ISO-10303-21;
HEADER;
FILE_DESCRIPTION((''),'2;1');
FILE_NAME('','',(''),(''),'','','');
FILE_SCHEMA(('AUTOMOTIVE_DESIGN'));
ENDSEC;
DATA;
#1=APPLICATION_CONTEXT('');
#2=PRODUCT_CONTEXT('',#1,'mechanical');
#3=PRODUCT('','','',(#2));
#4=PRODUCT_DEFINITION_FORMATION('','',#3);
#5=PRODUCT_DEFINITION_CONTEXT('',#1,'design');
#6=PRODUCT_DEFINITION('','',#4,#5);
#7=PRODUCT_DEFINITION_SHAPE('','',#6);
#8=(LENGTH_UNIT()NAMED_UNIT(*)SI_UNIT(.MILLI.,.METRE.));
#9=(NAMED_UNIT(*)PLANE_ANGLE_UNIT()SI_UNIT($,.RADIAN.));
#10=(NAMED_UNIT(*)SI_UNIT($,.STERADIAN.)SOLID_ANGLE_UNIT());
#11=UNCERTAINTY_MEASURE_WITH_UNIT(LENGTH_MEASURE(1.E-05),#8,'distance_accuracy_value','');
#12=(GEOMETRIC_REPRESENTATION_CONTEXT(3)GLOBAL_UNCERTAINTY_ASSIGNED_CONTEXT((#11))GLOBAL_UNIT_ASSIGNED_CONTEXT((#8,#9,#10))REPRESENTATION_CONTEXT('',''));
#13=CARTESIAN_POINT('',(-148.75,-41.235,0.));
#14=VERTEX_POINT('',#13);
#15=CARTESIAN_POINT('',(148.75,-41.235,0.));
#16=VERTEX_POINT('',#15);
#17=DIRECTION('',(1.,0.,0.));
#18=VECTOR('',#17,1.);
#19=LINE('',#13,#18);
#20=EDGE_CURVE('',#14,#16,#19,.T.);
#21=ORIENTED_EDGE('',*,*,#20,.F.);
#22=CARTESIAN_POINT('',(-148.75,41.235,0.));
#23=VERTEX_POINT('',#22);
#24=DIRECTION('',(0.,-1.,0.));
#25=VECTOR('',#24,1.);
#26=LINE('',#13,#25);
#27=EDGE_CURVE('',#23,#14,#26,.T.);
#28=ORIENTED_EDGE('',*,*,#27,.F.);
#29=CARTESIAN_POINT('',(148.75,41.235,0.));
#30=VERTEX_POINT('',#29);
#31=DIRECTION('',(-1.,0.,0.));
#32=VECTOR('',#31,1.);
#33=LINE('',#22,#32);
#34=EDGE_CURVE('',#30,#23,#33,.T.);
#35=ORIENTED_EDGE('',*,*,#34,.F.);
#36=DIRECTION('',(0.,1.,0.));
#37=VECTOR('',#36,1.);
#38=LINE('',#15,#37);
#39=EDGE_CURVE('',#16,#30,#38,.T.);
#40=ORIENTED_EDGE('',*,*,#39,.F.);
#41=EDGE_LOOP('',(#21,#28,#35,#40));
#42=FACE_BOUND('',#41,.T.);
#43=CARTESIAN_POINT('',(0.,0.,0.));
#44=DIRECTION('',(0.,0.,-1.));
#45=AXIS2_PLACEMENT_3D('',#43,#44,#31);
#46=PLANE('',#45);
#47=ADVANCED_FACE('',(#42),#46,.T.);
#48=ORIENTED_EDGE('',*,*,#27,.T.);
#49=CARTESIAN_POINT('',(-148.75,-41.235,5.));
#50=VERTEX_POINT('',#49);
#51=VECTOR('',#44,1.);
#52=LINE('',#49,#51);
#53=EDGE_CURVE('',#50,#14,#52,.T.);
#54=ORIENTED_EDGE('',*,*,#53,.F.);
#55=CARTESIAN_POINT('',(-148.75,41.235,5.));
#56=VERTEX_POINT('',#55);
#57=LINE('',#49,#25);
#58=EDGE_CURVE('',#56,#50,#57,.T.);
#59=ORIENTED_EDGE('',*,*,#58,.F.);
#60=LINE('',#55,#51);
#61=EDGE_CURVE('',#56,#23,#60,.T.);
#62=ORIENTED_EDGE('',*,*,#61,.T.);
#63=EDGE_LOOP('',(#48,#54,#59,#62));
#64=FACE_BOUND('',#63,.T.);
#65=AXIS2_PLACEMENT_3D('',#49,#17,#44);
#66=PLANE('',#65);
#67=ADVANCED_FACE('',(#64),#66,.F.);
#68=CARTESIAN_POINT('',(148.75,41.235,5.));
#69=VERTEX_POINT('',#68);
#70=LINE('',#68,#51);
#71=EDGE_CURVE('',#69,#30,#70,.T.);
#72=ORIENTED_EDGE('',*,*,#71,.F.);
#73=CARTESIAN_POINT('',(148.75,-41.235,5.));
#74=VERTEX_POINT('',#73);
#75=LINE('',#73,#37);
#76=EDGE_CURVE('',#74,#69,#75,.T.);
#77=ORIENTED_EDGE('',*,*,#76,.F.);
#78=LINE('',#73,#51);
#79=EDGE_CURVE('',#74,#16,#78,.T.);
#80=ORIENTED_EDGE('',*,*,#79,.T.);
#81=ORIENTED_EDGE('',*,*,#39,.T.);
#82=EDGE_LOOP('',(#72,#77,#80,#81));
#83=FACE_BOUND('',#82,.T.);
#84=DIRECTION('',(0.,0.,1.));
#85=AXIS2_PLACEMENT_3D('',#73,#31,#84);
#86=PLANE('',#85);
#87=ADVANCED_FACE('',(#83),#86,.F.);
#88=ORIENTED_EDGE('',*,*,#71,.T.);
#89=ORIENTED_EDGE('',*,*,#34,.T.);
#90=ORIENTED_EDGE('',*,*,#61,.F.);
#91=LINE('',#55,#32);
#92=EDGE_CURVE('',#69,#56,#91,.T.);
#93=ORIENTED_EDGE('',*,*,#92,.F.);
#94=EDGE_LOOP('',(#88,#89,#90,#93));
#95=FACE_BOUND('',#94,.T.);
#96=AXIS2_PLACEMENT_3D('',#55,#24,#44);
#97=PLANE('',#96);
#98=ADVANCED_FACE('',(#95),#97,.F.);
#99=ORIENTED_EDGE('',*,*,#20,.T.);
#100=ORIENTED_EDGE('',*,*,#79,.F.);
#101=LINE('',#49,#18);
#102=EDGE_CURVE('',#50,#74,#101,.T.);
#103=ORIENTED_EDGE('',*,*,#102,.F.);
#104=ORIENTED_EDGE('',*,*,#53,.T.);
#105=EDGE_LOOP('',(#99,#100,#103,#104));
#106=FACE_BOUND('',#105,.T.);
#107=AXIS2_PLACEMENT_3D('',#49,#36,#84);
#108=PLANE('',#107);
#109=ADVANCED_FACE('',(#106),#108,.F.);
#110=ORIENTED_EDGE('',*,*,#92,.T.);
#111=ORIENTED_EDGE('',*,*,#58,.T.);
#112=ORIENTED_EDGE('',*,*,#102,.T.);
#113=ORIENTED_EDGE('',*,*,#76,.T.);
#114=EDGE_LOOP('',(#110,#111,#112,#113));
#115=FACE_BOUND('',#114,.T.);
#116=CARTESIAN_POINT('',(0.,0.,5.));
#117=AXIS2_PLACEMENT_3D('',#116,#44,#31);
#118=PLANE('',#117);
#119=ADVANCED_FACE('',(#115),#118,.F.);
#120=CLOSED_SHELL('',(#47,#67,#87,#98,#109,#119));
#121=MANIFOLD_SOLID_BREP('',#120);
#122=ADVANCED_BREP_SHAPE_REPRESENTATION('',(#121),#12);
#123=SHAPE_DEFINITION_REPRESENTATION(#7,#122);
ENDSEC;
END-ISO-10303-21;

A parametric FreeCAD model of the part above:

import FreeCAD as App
import Part
import Sketcher
from FreeCAD import Vector


def add_polygon(sketch, points):
    """Adds a closed chain of lines whose ends are joined by coincident constraints."""
    first, n = sketch.GeometryCount, len(points)
    for a, b in zip(points, points[1:] + points[:1]):
        sketch.addGeometry(Part.LineSegment(App.Vector(*a, 0), App.Vector(*b, 0)), False)
    for i in range(n):
        sketch.addConstraint(Sketcher.Constraint("Coincident", first + i, 2, first + (i + 1) % n, 1))

doc = App.newDocument("Part")
body = doc.addObject("PartDesign::Body", "Body")

sketch1 = body.newObject("Sketcher::SketchObject", "Sketch")
sketch1.AttachmentSupport = (doc.getObject("XY_Plane"), [""])
sketch1.MapMode = "FlatFace"
add_polygon(sketch1, [(-149, 41), (-149, -41), (149, -41), (149, 41)])
sketch1.addConstraint(Sketcher.Constraint("Vertical", 0))
sketch1.addConstraint(Sketcher.Constraint("Horizontal", 1))
sketch1.addConstraint(Sketcher.Constraint("Vertical", 2))
sketch1.addConstraint(Sketcher.Constraint("Horizontal", 3))
sketch1.addConstraint(Sketcher.Constraint("Symmetric", 0, 2, 2, 2, -1, 1))
sketch1.addConstraint(Sketcher.Constraint("DistanceX", 1, 1, 1, 2, 297.5))
sketch1.addConstraint(Sketcher.Constraint("DistanceY", 0, 2, 0, 1, 82.47))
pad1 = body.newObject("PartDesign::Pad", "Pad")
pad1.Profile = sketch1
pad1.Length = 5

doc.recompute()
